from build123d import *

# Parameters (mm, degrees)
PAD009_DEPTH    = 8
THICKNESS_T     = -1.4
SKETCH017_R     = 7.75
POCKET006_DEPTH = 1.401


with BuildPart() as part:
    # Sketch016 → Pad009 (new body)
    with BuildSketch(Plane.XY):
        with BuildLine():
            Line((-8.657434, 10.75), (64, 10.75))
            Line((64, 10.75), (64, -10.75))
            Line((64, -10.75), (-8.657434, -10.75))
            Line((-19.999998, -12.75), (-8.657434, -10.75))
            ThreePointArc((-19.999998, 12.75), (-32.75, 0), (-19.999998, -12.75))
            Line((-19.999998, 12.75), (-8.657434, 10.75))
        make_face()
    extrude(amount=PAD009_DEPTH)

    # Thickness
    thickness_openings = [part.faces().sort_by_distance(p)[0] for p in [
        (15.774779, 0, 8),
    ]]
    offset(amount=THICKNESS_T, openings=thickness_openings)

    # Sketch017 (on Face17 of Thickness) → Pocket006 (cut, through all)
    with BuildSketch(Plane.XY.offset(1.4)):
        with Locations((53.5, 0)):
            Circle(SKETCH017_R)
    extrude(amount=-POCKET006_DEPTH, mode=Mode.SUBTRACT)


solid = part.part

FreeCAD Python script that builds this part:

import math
import FreeCAD as App
import Part
import Sketcher
from FreeCAD import Vector
Q = App.Units.Quantity


def faces_at(feature, points):
    """Names of the faces that lie closest to the given points."""
    faces = feature.Shape.Faces
    near = lambda p: min(range(len(faces)), key=lambda i: faces[i].distToShape(Part.Vertex(*p))[0])
    return sorted({f"Face{near(p) + 1}" for p in points})

doc = App.newDocument("Part")
params = doc.addObject("Spreadsheet::Sheet", "Params")
for row, (alias, value) in enumerate([
    ("sketch1_radius", "12.75 mm"),
    ("sketch1_height", "21.5 mm"),
    ("pad1_length", "8 mm"),
    ("thickness_wall", "1.4 mm"),
    ("sketch2_diameter", "15.5 mm"),
], start=1):
    params.set(f"A{row}", alias)
    params.set(f"B{row}", "=" + value)
    params.setAlias(f"B{row}", alias)

body = doc.addObject("PartDesign::Body", "Body")

# Sketch on XY plane
sketch1 = doc.addObject("Sketcher::SketchObject", "Sketch")
body.addObject(sketch1)
sketch1.AttachmentSupport = (doc.XY_Plane, [""])
sketch1.MapMode = "FlatFace"
sketch1.addGeometry(Part.LineSegment(Vector(64, 11, 0), Vector(-9, 11, 0)), False)
sketch1.addGeometry(Part.LineSegment(Vector(-9, 11, 0), Vector(-20, 13, 0)), False)
sketch1.addGeometry(Part.ArcOfCircle(Part.Circle(Vector(-20, 0, 0), Vector(0, 0, 1), 13), math.radians(90), math.radians(270)), False)
sketch1.addGeometry(Part.LineSegment(Vector(-20, -13, 0), Vector(-9, -11, 0)), False)
sketch1.addGeometry(Part.LineSegment(Vector(-9, -11, 0), Vector(64, -11, 0)), False)
sketch1.addGeometry(Part.LineSegment(Vector(64, -11, 0), Vector(64, 11, 0)), False)
sketch1.addConstraint(Sketcher.Constraint("Coincident", 0, 2, 1, 1))
sketch1.addConstraint(Sketcher.Constraint("Coincident", 1, 2, 2, 1))
sketch1.addConstraint(Sketcher.Constraint("Coincident", 2, 2, 3, 1))
sketch1.addConstraint(Sketcher.Constraint("Coincident", 3, 2, 4, 1))
sketch1.addConstraint(Sketcher.Constraint("Coincident", 4, 2, 5, 1))
sketch1.addConstraint(Sketcher.Constraint("Coincident", 5, 2, 0, 1))
sketch1.addConstraint(Sketcher.Constraint("Horizontal", 0))
sketch1.addConstraint(Sketcher.Constraint("Horizontal", 4))
sketch1.addConstraint(Sketcher.Constraint("Vertical", 5))
sketch1.addConstraint(Sketcher.Constraint("Symmetric", 1, 2, 2, 2, -1))
sketch1.addConstraint(Sketcher.Constraint("Symmetric", 0, 2, 3, 2, -1))
sketch1.addConstraint(Sketcher.Constraint("Vertical", 2, 3, 1, 2))
sketch1.addConstraint(Sketcher.Constraint("Angle", 1, Q("170 deg")))
sketch1.addConstraint(Sketcher.Constraint("Radius", 2, Q("12.75 mm")))
sketch1.addConstraint(Sketcher.Constraint("DistanceY", 5, 1, 5, 2, Q("21.5 mm")))
sketch1.addConstraint(Sketcher.Constraint("DistanceX", 2, 3, -1, 1, Q("20 mm")))
sketch1.addConstraint(Sketcher.Constraint("DistanceX", -1, 1, 4, 2, Q("64 mm")))
sketch1.setExpression("Constraints[13]", "Params.sketch1_radius")
sketch1.setExpression("Constraints[14]", "Params.sketch1_height")
pad1 = doc.addObject("PartDesign::Pad", "Pad")
body.addObject(pad1)
pad1.Profile = sketch1
pad1.setExpression("Length", "Params.pad1_length")
doc.recompute()

thickness = doc.addObject("PartDesign::Thickness", "Thickness")
body.addObject(thickness)
thickness.Base = (pad1, faces_at(pad1, [(15.625, 0, 8)]))
thickness.setExpression("Value", "Params.thickness_wall")
thickness.Reversed = True
thickness.Join = "Arc"

# Sketch on XY plane
sketch2 = doc.addObject("Sketcher::SketchObject", "Sketch001")
body.addObject(sketch2)
sketch2.AttachmentSupport = (doc.XY_Plane, [""])
sketch2.MapMode = "FlatFace"
sketch2.AttachmentOffset = App.Placement(Vector(0, 0, 1.4), App.Rotation())
sketch2.addGeometry(Part.Circle(Vector(54, 0, 0), Vector(0, 0, 1), 8), False)
sketch2.addConstraint(Sketcher.Constraint("PointOnObject", 0, 3, -1))
sketch2.addConstraint(Sketcher.Constraint("Diameter", 0, Q("15.5 mm")))
sketch2.addConstraint(Sketcher.Constraint("DistanceX", -1, 1, 0, 3, Q("53.5 mm")))
sketch2.setExpression("Constraints[1]", "Params.sketch2_diameter")
pocket1 = doc.addObject("PartDesign::Pocket", "Pocket")
body.addObject(pocket1)
pocket1.Profile = sketch2
pocket1.Type = "ThroughAll"

doc.recompute()
